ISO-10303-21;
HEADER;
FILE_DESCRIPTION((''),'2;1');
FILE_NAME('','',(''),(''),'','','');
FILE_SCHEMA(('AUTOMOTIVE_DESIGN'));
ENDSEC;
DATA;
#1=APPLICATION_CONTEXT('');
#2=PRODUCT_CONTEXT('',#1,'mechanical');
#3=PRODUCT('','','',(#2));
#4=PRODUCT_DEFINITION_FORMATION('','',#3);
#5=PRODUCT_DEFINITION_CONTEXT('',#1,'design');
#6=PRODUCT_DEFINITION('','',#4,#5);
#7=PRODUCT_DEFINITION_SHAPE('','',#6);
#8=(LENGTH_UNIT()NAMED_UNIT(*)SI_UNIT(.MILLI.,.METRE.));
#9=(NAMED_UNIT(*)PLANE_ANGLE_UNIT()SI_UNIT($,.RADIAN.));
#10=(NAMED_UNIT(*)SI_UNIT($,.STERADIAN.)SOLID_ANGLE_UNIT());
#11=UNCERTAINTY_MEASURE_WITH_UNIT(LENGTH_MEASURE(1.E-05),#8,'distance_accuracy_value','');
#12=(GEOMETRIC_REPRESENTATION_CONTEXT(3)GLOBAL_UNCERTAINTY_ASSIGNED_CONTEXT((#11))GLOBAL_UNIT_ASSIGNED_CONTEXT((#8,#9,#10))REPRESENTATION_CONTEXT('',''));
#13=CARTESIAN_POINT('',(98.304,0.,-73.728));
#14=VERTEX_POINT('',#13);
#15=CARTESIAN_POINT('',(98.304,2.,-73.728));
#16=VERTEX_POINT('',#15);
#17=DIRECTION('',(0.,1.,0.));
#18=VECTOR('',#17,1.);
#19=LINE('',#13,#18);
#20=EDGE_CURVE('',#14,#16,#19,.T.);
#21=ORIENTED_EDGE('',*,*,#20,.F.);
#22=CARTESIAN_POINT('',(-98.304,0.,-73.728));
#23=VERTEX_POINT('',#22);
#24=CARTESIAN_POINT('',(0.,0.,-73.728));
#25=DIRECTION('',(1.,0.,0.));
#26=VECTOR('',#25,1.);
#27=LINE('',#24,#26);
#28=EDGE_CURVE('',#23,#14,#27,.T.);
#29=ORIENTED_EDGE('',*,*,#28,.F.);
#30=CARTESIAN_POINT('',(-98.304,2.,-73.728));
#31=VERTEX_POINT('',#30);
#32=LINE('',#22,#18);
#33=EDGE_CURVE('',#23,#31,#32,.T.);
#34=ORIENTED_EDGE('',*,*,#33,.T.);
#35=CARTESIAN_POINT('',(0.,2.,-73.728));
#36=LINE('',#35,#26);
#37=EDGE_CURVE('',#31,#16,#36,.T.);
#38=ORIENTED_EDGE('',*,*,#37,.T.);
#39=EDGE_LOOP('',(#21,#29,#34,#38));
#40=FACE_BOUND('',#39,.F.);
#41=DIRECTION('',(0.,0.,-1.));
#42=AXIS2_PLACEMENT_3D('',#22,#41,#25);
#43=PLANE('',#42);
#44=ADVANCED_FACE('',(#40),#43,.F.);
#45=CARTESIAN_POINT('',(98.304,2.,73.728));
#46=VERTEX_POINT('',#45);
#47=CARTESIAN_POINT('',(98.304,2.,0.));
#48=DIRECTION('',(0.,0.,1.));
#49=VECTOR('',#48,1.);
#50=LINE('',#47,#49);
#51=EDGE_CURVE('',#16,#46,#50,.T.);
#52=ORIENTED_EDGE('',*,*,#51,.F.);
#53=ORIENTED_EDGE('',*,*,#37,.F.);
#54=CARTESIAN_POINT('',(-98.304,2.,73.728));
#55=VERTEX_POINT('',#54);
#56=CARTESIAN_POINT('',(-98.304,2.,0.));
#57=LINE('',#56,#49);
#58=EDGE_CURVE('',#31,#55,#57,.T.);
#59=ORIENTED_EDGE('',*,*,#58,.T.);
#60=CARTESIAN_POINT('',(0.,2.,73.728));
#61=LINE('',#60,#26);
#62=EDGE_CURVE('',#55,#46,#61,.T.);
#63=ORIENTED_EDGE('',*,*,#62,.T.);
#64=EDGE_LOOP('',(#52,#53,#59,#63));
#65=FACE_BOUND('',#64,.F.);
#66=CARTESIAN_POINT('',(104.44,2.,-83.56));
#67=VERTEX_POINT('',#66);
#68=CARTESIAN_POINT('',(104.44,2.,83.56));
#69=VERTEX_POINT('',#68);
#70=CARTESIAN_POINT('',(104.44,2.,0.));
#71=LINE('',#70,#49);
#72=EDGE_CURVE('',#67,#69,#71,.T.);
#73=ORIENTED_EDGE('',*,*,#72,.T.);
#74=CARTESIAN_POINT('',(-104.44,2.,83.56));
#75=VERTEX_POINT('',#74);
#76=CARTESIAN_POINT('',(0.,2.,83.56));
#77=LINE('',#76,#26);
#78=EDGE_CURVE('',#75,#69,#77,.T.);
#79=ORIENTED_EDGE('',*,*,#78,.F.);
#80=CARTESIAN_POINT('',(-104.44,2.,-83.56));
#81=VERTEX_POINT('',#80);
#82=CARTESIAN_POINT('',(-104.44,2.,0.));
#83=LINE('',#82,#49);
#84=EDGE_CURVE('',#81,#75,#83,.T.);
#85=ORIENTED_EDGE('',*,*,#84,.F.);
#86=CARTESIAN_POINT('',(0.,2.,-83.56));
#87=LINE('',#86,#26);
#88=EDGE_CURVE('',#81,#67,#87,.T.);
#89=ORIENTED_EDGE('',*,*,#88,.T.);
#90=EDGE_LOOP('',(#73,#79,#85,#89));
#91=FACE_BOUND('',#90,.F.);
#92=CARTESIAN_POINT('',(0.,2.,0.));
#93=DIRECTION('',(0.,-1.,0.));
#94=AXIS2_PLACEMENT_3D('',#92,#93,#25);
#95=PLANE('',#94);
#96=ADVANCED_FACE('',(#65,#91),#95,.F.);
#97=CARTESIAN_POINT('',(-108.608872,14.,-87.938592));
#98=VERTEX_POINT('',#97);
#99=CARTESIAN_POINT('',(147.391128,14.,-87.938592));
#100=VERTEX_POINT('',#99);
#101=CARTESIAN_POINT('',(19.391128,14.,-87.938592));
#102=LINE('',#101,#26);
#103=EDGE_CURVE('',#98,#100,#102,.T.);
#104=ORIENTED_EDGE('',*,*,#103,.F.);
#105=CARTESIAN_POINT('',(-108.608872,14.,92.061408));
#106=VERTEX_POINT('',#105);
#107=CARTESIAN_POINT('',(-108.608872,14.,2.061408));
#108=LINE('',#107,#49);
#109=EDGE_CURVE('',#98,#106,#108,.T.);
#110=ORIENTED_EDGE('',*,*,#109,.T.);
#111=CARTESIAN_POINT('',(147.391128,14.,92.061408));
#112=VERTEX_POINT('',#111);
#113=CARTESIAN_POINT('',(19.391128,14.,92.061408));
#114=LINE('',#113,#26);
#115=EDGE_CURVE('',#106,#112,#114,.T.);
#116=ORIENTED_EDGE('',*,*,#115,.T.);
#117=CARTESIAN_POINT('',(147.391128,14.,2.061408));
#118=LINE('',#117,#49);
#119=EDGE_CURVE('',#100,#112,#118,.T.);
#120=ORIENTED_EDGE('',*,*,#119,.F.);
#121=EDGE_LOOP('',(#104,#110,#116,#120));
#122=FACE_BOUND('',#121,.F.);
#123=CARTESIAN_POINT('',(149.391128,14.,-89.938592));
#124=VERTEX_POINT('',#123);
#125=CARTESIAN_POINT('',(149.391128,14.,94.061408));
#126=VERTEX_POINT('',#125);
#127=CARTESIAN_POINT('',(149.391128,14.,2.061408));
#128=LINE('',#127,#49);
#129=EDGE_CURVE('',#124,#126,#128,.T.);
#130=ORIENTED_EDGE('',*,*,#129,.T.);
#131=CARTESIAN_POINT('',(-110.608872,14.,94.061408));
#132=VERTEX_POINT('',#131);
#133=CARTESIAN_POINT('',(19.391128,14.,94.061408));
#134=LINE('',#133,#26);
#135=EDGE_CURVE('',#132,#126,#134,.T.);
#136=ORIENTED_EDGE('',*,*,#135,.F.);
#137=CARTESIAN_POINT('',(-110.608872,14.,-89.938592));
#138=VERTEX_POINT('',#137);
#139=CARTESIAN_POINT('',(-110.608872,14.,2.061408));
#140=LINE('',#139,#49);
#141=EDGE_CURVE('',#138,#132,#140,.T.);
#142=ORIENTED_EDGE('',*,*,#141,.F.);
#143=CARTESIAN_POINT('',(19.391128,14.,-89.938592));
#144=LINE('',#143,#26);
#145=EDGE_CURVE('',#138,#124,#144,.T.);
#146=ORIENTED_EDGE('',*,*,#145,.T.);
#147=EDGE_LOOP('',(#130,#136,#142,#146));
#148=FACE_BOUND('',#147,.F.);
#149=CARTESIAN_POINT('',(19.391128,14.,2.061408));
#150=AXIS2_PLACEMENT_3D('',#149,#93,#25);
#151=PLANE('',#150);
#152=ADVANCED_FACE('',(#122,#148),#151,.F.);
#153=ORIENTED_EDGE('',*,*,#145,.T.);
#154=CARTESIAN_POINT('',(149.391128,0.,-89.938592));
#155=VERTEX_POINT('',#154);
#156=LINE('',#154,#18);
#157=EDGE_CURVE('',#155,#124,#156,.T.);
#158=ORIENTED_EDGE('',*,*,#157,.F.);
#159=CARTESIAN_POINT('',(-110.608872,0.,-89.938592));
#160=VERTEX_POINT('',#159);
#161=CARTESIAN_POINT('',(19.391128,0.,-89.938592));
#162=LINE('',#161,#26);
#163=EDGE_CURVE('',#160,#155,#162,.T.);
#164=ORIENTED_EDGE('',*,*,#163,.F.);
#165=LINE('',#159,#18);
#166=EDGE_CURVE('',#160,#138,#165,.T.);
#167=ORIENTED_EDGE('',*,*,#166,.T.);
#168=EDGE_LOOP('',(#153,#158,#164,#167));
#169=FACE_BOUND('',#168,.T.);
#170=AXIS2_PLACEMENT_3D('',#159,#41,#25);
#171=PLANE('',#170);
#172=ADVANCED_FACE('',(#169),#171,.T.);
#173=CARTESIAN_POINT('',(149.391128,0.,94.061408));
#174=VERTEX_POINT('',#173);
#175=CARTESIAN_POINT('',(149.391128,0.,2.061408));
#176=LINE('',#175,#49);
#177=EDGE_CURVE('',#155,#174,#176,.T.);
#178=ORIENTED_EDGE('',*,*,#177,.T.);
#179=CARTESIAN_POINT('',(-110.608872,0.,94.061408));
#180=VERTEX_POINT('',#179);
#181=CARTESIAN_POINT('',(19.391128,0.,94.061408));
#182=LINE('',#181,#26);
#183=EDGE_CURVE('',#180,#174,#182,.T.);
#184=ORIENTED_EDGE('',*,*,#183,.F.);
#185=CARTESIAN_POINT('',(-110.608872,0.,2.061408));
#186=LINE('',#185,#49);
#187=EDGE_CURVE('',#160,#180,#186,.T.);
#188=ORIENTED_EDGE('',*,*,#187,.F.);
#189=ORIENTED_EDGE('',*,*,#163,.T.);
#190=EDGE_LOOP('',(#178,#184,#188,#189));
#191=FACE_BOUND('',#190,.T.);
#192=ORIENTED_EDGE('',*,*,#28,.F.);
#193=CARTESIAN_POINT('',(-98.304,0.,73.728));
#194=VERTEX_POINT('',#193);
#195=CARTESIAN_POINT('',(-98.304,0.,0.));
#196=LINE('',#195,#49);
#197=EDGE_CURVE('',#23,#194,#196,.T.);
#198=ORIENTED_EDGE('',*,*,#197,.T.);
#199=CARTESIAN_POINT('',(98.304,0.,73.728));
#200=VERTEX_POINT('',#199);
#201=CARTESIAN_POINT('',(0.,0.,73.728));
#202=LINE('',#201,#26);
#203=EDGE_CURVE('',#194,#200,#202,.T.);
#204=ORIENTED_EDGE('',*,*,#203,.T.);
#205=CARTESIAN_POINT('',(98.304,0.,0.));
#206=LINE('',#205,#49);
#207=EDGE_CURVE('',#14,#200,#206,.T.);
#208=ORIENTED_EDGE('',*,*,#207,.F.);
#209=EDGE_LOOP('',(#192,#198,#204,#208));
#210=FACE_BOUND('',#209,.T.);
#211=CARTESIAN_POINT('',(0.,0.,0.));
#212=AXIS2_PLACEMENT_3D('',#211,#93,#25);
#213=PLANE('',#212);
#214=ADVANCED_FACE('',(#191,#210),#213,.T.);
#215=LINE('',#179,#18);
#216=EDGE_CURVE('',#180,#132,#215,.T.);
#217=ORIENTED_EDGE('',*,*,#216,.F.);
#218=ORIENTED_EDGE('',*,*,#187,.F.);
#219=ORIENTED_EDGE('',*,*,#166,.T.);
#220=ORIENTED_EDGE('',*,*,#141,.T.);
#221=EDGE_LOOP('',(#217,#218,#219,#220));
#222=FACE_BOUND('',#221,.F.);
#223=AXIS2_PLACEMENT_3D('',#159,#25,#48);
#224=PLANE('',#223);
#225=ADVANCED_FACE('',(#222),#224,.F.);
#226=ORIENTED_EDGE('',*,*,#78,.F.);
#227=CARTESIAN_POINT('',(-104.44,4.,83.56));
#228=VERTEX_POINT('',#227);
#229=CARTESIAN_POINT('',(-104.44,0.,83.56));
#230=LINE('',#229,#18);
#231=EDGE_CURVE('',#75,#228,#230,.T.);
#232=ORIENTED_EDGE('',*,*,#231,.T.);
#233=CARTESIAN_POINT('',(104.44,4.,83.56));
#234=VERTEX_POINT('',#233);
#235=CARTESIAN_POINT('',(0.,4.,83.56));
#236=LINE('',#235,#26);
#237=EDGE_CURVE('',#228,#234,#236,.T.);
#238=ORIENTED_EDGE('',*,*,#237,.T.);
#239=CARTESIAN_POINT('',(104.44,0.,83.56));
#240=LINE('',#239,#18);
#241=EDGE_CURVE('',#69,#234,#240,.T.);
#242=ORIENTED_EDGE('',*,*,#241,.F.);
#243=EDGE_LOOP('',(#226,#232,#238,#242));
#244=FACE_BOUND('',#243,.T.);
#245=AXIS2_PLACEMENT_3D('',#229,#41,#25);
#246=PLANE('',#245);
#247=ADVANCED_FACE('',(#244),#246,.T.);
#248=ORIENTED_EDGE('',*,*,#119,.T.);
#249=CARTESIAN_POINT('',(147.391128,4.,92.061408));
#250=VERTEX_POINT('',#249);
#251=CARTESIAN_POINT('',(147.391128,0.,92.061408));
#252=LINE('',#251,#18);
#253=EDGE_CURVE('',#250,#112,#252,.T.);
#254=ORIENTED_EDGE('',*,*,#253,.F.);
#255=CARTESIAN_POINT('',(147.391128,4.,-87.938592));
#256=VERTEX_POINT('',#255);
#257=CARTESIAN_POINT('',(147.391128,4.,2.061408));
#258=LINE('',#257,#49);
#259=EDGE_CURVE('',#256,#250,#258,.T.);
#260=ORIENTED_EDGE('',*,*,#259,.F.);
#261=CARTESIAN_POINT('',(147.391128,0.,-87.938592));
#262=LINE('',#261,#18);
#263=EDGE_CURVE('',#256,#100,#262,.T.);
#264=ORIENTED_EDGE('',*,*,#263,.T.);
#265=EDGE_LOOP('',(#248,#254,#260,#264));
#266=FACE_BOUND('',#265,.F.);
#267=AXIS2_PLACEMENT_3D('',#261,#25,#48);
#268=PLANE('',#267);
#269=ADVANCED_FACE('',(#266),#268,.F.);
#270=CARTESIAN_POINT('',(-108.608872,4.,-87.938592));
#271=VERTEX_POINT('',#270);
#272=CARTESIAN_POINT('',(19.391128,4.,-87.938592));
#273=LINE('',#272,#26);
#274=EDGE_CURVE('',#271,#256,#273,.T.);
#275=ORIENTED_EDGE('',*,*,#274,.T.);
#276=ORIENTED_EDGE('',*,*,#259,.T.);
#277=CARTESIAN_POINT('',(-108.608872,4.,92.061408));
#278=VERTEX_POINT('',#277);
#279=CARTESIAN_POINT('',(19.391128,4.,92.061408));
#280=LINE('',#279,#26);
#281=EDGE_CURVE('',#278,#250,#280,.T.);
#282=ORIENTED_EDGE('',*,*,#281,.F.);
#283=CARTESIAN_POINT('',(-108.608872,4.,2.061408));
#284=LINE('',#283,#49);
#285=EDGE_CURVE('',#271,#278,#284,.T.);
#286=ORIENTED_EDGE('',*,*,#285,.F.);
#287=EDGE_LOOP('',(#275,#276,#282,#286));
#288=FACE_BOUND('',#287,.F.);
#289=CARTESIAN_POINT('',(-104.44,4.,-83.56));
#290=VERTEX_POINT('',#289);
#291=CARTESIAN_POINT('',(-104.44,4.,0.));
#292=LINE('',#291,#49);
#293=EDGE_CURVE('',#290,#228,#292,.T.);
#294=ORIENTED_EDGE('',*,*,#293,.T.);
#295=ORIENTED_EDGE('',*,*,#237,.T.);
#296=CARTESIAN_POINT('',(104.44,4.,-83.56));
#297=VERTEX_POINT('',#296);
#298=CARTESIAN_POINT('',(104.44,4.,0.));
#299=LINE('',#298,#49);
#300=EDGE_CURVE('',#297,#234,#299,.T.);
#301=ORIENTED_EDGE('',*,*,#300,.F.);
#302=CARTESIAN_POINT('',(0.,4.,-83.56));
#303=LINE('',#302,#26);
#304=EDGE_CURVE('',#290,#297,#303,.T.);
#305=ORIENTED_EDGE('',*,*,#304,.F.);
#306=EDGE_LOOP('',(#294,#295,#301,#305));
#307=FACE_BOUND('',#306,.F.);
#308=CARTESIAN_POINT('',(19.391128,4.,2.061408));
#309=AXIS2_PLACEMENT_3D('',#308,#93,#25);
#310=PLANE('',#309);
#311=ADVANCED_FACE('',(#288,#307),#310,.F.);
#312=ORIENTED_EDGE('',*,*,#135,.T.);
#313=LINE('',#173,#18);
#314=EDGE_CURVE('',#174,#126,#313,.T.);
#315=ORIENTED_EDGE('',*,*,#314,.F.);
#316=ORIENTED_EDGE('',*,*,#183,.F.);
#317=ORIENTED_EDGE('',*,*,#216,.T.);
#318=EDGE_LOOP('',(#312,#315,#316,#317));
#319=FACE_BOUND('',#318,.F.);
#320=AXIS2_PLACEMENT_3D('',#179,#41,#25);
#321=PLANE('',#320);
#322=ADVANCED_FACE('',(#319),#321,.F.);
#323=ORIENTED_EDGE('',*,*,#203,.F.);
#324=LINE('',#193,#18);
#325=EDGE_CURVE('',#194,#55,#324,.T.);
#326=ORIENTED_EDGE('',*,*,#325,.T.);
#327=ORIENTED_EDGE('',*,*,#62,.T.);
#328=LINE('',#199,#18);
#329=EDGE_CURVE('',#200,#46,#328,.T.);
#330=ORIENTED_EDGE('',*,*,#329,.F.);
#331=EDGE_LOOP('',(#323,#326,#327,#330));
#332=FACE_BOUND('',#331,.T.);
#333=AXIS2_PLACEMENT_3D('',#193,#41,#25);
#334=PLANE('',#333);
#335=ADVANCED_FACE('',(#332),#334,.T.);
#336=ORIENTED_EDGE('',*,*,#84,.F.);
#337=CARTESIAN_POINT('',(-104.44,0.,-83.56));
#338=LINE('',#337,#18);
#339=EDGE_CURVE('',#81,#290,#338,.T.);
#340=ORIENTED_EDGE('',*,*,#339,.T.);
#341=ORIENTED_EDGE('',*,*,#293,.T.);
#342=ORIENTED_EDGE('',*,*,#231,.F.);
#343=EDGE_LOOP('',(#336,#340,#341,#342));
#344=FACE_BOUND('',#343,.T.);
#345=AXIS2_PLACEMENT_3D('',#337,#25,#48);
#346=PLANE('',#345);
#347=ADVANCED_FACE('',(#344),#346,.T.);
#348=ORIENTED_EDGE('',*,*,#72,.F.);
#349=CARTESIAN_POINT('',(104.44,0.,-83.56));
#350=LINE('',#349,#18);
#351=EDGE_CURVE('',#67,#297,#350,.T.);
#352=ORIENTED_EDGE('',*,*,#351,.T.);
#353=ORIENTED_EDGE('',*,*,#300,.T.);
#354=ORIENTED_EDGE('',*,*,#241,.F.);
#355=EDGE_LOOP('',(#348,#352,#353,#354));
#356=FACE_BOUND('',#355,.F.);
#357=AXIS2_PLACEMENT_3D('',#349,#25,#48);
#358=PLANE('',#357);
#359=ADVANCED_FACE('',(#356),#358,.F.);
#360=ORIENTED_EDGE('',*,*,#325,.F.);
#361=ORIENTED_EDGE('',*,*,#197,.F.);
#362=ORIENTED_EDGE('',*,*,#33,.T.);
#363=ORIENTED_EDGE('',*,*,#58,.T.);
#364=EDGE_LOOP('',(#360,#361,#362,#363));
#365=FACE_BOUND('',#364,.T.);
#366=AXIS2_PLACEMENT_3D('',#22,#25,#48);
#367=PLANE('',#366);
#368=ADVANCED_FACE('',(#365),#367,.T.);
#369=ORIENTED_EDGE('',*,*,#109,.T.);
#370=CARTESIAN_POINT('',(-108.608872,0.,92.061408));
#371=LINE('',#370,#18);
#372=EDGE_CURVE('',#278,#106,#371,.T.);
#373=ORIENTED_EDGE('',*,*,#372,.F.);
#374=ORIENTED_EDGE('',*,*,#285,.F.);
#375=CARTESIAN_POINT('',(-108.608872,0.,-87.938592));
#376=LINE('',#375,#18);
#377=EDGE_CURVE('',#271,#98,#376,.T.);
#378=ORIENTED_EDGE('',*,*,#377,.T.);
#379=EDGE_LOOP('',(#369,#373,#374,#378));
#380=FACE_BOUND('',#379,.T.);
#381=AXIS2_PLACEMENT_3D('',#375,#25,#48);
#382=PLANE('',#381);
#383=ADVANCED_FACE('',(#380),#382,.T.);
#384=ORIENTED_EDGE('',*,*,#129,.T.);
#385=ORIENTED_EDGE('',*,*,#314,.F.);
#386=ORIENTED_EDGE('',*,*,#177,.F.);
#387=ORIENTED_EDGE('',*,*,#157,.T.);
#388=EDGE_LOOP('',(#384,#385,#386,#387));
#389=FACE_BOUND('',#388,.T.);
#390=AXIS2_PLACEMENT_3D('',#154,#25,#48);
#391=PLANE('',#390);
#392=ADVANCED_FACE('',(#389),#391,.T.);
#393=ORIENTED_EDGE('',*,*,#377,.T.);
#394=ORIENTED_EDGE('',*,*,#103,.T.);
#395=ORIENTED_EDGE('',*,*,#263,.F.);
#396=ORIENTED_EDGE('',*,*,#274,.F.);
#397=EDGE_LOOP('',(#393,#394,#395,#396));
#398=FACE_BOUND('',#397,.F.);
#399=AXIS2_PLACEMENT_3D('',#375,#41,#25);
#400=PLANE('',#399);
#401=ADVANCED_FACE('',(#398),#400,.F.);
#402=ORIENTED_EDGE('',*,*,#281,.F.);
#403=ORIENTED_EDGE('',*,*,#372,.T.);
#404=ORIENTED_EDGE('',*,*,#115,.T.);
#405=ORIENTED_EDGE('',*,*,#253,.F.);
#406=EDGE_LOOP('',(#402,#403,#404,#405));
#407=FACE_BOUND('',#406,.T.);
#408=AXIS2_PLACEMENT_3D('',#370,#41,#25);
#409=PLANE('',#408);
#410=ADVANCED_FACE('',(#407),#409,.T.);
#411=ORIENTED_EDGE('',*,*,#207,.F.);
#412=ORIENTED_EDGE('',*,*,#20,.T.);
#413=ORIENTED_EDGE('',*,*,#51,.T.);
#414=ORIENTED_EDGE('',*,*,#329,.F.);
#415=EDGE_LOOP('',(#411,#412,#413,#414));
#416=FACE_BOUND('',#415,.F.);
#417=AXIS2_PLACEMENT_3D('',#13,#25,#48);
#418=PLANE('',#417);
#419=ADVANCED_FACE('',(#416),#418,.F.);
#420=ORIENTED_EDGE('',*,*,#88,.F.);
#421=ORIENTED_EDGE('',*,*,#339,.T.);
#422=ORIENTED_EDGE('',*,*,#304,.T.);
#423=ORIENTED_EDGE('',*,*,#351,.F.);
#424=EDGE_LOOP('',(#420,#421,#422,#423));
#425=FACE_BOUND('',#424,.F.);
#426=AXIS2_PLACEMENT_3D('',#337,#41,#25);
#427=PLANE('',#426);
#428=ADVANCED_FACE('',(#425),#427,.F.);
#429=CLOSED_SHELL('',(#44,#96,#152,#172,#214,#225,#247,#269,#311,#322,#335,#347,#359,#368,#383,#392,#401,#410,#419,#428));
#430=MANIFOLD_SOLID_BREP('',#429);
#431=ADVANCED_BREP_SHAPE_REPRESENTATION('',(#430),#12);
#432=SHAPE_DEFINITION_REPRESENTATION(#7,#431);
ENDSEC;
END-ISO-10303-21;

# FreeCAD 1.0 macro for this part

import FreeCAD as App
import Part
import Sketcher
Q = App.Units.Quantity


def add_polygon(sketch, points):
    """Adds a closed chain of lines whose ends are joined by coincident constraints."""
    first, n = sketch.GeometryCount, len(points)
    for a, b in zip(points, points[1:] + points[:1]):
        sketch.addGeometry(Part.LineSegment(App.Vector(*a, 0), App.Vector(*b, 0)), False)
    for i in range(n):
        sketch.addConstraint(Sketcher.Constraint("Coincident", first + i, 2, first + (i + 1) % n, 1))

doc = App.newDocument("Part")
params = doc.addObject("Spreadsheet::Sheet", "Params")
for row, (alias, value) in enumerate([
    ("sketch1_width", "260 mm"),
    ("sketch1_width2", "256 mm"),
    ("sketch1_height", "184 mm"),
    ("sketch1_height2", "180 mm"),
    ("pad1_length", "14 mm"),
    ("sketch2_width", "256 mm"),
    ("sketch2_height", "180 mm"),
    ("sketch2_width2", "208.88 mm"),
    ("sketch2_height2", "167.12 mm"),
    ("pad2_length", "4 mm"),
    ("sketch3_width", "208.88 mm"),
    ("sketch3_height", "167.12 mm"),
    ("pad3_length", "2 mm"),
], start=1):
    params.set(f"A{row}", alias)
    params.set(f"B{row}", "=" + value)
    params.setAlias(f"B{row}", alias)

body = doc.addObject("PartDesign::Body", "Body")

sketch1 = body.newObject("Sketcher::SketchObject", "Sketch")
sketch1.AttachmentSupport = (doc.getObject("XZ_Plane"), [""])
sketch1.MapMode = "FlatFace"
add_polygon(sketch1, [(-111, 94), (-111, -90), (149, -90), (149, 94)])
add_polygon(sketch1, [(147, -88), (-109, -88), (-109, 92), (147, 92)])
sketch1.addConstraint([
    Sketcher.Constraint("Vertical", 0),
    Sketcher.Constraint("Horizontal", 1),
    Sketcher.Constraint("Vertical", 2),
    Sketcher.Constraint("Horizontal", 3),
    Sketcher.Constraint("Horizontal", 4),
    Sketcher.Constraint("Vertical", 5),
    Sketcher.Constraint("Horizontal", 6),
    Sketcher.Constraint("Vertical", 7),
    Sketcher.Constraint("DistanceX", 1, 1, 1, 2, Q("260 mm")),
    Sketcher.Constraint("DistanceX", 4, 2, 4, 1, Q("256 mm")),
    Sketcher.Constraint("DistanceY", 0, 2, 0, 1, Q("184 mm")),
    Sketcher.Constraint("DistanceY", 5, 1, 5, 2, Q("180 mm")),
    Sketcher.Constraint("DistanceX", 0, 2, 4, 2, Q("2 mm")),
    Sketcher.Constraint("DistanceY", 0, 2, 4, 2, Q("2 mm")),
    Sketcher.Constraint("DistanceY", 0, 2, -1, 1, Q("89.938592 mm")),
    Sketcher.Constraint("DistanceX", -1, 1, 1, 2, Q("149.391128 mm")),
])
sketch1.setExpression("Constraints[16]", "Params.sketch1_width")
sketch1.setExpression("Constraints[17]", "Params.sketch1_width2")
sketch1.setExpression("Constraints[18]", "Params.sketch1_height")
sketch1.setExpression("Constraints[19]", "Params.sketch1_height2")
pad1 = body.newObject("PartDesign::Pad", "Pad")
pad1.Profile = sketch1
pad1.setExpression("Length", "Params.pad1_length")
pad1.Reversed = True

sketch2 = body.newObject("Sketcher::SketchObject", "Sketch001")
sketch2.AttachmentSupport = (doc.getObject("XZ_Plane"), [""])
sketch2.MapMode = "FlatFace"
add_polygon(sketch2, [(-109, 92), (-109, -88), (147, -88), (147, 92)])
add_polygon(sketch2, [(104, -84), (-104, -84), (-104, 84), (104, 84)])
sketch2.addConstraint([
    Sketcher.Constraint("Vertical", 0),
    Sketcher.Constraint("Horizontal", 1),
    Sketcher.Constraint("Vertical", 2),
    Sketcher.Constraint("Horizontal", 3),
    Sketcher.Constraint("Horizontal", 4),
    Sketcher.Constraint("Vertical", 5),
    Sketcher.Constraint("Horizontal", 6),
    Sketcher.Constraint("Vertical", 7),
    Sketcher.Constraint("Symmetric", 4, 2, 6, 2, -1, 1),
    Sketcher.Constraint("DistanceX", 1, 1, 1, 2, Q("256 mm")),
    Sketcher.Constraint("DistanceY", 0, 2, 0, 1, Q("180 mm")),
    Sketcher.Constraint("DistanceX", 4, 2, 4, 1, Q("208.88 mm")),
    Sketcher.Constraint("DistanceY", 5, 1, 5, 2, Q("167.12 mm")),
    Sketcher.Constraint("DistanceY", 0, 2, -1, 1, Q("87.938592 mm")),
    Sketcher.Constraint("DistanceX", -1, 1, 1, 2, Q("147.391128 mm")),
])
sketch2.setExpression("Constraints[17]", "Params.sketch2_width")
sketch2.setExpression("Constraints[18]", "Params.sketch2_height")
sketch2.setExpression("Constraints[19]", "Params.sketch2_width2")
sketch2.setExpression("Constraints[20]", "Params.sketch2_height2")
pad2 = body.newObject("PartDesign::Pad", "Pad001")
pad2.Profile = sketch2
pad2.setExpression("Length", "Params.pad2_length")
pad2.Reversed = True

sketch3 = body.newObject("Sketcher::SketchObject", "Sketch002")
sketch3.AttachmentSupport = (doc.getObject("XZ_Plane"), [""])
sketch3.MapMode = "FlatFace"
add_polygon(sketch3, [(-104, 84), (-104, -84), (104, -84), (104, 84)])
add_polygon(sketch3, [(98, -74), (-98, -74), (-98, 74), (98, 74)])
sketch3.addConstraint([
    Sketcher.Constraint("Vertical", 0),
    Sketcher.Constraint("Horizontal", 1),
    Sketcher.Constraint("Vertical", 2),
    Sketcher.Constraint("Horizontal", 3),
    Sketcher.Constraint("Horizontal", 4),
    Sketcher.Constraint("Vertical", 5),
    Sketcher.Constraint("Horizontal", 6),
    Sketcher.Constraint("Vertical", 7),
    Sketcher.Constraint("Symmetric", 0, 2, 2, 2, -1, 1),
    Sketcher.Constraint("Symmetric", 4, 2, 6, 2, -1, 1),
    Sketcher.Constraint("DistanceX", 1, 1, 1, 2, Q("208.88 mm")),
    Sketcher.Constraint("DistanceY", 0, 2, 0, 1, Q("167.12 mm")),
    Sketcher.Constraint("DistanceX", 4, 2, 4, 1, Q("196.608 mm")),
    Sketcher.Constraint("DistanceY", 5, 1, 5, 2, Q("147.456 mm")),
])
sketch3.setExpression("Constraints[18]", "Params.sketch3_width")
sketch3.setExpression("Constraints[19]", "Params.sketch3_height")
pad3 = body.newObject("PartDesign::Pad", "Pad002")
pad3.Profile = sketch3
pad3.setExpression("Length", "Params.pad3_length")
pad3.Reversed = True

doc.recompute()
